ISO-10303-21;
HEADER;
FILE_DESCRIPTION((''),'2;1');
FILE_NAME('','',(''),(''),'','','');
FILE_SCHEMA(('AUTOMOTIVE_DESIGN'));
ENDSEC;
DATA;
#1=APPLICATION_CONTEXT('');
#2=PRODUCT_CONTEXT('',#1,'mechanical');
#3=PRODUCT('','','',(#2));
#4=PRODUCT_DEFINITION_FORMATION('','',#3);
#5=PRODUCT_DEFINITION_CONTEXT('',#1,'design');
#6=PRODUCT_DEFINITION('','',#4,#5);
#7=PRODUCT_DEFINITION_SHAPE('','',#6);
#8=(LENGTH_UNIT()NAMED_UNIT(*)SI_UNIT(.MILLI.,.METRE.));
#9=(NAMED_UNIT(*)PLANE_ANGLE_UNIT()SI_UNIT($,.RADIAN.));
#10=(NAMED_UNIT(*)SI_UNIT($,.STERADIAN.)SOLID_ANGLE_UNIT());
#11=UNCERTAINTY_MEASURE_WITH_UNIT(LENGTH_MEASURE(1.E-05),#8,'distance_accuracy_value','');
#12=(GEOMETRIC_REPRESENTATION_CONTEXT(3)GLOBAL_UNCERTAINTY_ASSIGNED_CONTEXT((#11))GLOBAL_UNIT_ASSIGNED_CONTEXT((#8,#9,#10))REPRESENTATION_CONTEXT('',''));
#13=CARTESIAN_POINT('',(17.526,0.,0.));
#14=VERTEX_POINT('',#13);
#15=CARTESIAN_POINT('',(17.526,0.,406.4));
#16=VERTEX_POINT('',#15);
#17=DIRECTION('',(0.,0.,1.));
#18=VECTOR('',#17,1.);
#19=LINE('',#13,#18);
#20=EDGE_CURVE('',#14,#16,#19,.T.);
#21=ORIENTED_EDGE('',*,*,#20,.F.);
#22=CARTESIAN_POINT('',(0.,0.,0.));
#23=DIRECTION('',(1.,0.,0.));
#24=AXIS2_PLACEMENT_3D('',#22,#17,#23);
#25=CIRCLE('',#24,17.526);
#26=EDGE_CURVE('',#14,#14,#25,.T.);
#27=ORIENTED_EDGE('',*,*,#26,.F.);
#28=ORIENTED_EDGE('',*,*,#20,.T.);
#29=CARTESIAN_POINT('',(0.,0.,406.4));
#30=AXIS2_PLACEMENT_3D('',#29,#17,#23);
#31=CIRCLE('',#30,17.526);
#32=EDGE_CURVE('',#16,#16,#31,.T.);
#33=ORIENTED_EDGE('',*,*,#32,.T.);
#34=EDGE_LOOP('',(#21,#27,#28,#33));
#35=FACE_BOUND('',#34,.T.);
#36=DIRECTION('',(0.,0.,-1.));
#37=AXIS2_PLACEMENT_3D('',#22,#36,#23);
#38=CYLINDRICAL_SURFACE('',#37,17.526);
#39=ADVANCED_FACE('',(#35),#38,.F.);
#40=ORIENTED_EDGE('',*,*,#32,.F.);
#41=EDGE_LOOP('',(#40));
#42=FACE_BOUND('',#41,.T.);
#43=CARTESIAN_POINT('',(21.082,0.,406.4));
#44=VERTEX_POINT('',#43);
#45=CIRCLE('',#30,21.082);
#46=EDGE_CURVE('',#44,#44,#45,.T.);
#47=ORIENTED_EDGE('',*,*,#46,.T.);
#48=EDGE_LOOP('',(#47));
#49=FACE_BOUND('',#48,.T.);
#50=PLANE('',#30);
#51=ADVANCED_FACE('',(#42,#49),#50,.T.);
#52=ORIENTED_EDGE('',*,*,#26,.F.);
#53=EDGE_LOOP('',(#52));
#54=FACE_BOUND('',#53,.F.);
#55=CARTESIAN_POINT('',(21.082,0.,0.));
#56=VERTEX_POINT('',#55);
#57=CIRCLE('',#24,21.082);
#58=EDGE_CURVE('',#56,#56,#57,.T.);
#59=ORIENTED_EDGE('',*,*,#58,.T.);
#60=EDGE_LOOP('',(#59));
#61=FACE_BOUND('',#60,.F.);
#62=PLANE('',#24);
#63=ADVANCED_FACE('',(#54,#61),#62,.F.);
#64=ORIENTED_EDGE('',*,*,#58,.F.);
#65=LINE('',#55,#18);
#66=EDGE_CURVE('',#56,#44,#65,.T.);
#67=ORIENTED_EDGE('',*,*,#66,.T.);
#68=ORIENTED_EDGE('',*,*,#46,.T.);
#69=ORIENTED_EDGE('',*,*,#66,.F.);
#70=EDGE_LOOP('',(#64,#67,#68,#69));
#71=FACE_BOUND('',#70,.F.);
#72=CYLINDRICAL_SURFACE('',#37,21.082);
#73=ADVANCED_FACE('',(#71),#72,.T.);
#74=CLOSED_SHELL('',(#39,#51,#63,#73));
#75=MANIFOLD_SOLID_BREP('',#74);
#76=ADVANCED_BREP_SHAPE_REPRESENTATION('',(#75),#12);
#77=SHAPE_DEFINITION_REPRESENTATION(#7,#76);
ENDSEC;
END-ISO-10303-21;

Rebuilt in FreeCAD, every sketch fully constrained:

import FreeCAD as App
import Part
import Sketcher
Q = App.Units.Quantity

doc = App.newDocument("Part")
body = doc.addObject("PartDesign::Body", "Body")

# Sketch on XY plane
sketch1 = body.newObject("Sketcher::SketchObject", "Sketch")
sketch1.AttachmentSupport = (doc.getObject("XY_Plane"), [""])
sketch1.MapMode = "FlatFace"
sketch1.addGeometry([
    Part.Circle(App.Vector(0, 0, 0), App.Vector(0, 0, 1), 21.082),
    Part.Circle(App.Vector(0, 0, 0), App.Vector(0, 0, 1), 17.526),
], False)
sketch1.addConstraint([
    Sketcher.Constraint("Coincident", 0, 3, -1, 1),
    Sketcher.Constraint("Coincident", 1, 3, -1, 1),
    Sketcher.Constraint("Diameter", 0, Q("1.66 in")),
    Sketcher.Constraint("Diameter", 1, Q("1.38 in")),
])
pad1 = body.newObject("PartDesign::Pad", "Pad")
pad1.Profile = sketch1
pad1.Length = Q("16 in")

doc.recompute()
